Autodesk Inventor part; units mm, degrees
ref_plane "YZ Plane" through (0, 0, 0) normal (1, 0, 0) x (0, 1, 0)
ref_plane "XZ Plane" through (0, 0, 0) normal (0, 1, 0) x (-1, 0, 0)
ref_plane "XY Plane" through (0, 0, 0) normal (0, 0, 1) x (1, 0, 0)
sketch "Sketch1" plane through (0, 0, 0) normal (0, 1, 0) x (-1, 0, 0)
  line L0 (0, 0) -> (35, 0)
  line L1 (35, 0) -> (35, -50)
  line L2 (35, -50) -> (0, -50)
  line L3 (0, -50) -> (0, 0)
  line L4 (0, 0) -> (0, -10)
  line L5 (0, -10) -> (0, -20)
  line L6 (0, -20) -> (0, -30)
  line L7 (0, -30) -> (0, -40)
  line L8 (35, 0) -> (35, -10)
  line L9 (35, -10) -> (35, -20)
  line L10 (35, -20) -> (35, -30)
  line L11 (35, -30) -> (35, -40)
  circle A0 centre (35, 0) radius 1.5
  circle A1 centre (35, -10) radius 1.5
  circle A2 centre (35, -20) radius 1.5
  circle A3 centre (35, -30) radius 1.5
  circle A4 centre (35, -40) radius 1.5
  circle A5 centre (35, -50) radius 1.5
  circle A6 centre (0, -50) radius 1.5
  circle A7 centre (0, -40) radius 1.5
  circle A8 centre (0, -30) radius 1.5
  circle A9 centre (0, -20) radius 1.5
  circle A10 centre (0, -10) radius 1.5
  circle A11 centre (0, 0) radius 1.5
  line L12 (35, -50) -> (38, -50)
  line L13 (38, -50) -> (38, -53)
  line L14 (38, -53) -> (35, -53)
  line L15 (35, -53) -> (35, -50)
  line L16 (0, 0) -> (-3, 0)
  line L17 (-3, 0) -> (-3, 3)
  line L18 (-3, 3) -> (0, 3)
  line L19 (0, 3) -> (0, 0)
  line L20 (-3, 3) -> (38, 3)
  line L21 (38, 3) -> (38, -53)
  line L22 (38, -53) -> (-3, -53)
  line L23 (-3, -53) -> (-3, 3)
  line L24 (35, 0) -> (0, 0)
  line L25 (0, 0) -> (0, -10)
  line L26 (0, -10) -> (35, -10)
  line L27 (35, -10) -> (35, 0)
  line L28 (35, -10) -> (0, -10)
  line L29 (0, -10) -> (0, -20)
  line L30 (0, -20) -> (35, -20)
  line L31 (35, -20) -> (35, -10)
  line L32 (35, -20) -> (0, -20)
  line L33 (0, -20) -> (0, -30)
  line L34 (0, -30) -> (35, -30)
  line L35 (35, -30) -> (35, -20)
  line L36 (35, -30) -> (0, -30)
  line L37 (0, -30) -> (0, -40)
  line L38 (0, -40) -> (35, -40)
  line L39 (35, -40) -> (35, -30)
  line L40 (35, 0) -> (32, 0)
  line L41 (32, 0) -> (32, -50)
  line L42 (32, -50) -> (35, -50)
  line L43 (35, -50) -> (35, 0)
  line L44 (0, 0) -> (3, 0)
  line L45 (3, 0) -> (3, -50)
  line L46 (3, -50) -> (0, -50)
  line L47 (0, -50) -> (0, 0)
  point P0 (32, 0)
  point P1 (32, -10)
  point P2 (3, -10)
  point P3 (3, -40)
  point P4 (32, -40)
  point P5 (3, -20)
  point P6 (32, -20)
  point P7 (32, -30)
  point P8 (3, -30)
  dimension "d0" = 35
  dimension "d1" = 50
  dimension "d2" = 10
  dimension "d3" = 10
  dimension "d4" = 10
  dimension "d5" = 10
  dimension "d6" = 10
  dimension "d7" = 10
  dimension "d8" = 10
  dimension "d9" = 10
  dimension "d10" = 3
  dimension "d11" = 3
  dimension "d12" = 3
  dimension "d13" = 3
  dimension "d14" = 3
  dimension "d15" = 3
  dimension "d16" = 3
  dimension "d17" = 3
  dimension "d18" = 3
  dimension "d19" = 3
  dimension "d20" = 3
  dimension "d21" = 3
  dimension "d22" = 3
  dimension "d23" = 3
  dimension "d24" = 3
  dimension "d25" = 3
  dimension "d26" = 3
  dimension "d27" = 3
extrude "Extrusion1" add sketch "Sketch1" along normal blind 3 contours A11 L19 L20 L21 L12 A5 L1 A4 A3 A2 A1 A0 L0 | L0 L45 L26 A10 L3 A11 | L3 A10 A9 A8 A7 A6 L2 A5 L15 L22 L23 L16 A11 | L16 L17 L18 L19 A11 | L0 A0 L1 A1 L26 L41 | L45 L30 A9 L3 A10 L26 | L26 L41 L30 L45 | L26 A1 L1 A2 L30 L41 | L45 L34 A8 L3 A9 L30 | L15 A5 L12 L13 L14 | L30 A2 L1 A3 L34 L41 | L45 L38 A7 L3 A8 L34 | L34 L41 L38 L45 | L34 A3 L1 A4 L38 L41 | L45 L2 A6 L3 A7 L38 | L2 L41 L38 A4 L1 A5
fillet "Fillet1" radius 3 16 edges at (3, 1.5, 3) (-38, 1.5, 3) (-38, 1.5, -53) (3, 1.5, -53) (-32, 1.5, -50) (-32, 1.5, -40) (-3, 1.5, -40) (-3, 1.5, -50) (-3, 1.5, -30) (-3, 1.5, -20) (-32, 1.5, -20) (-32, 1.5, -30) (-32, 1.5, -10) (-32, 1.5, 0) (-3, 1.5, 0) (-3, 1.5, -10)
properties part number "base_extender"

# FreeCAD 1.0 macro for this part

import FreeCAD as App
import Part
import Sketcher
Q = App.Units.Quantity


def edges_at(feature, points):
    """Names of the edges that pass closest to the given points."""
    edges = feature.Shape.Edges
    near = lambda p: min(range(len(edges)), key=lambda i: edges[i].distToShape(Part.Vertex(*p))[0])
    return sorted({f"Edge{near(p) + 1}" for p in points})


def add_polygon(sketch, points):
    """Adds a closed chain of lines whose ends are joined by coincident constraints."""
    first, n = sketch.GeometryCount, len(points)
    for a, b in zip(points, points[1:] + points[:1]):
        sketch.addGeometry(Part.LineSegment(App.Vector(*a, 0), App.Vector(*b, 0)), False)
    for i in range(n):
        sketch.addConstraint(Sketcher.Constraint("Coincident", first + i, 2, first + (i + 1) % n, 1))

doc = App.newDocument("Part")
body = doc.addObject("PartDesign::Body", "Body")

# Sketch on XZ plane
sketch1 = doc.addObject("Sketcher::SketchObject", "Sketch")
body.addObject(sketch1)
sketch1.AttachmentSupport = (doc.XZ_Plane, [""])
sketch1.MapMode = "FlatFace"
add_polygon(sketch1, [(-38, 3), (3, 3), (3, -53), (-38, -53)])  # lines 0-3
sketch1.addGeometry(Part.Circle(App.Vector(0, 0, 0), App.Vector(0, 0, 1), 1.5), False)  # 4
sketch1.addGeometry(Part.Circle(App.Vector(-35, -50, 0), App.Vector(0, 0, 1), 1.5), False)  # 5
sketch1.addGeometry(Part.Circle(App.Vector(-35, -40, 0), App.Vector(0, 0, 1), 1.5), False)  # 6
sketch1.addGeometry(Part.Circle(App.Vector(-35, -30, 0), App.Vector(0, 0, 1), 1.5), False)  # 7
sketch1.addGeometry(Part.Circle(App.Vector(-35, -20, 0), App.Vector(0, 0, 1), 1.5), False)  # 8
sketch1.addGeometry(Part.Circle(App.Vector(-35, -10, 0), App.Vector(0, 0, 1), 1.5), False)  # 9
sketch1.addGeometry(Part.Circle(App.Vector(-35, 0, 0), App.Vector(0, 0, 1), 1.5), False)  # 10
add_polygon(sketch1, [(-3, 0), (-32, 0), (-32, -10), (-3, -10)])  # lines 11-14
add_polygon(sketch1, [(-32, -40), (-32, -50), (-3, -50), (-3, -40)])  # lines 15-18
add_polygon(sketch1, [(-32, -20), (-32, -30), (-3, -30), (-3, -20)])  # lines 19-22
sketch1.addGeometry(Part.Circle(App.Vector(0, -10, 0), App.Vector(0, 0, 1), 1.5), False)  # 23
sketch1.addGeometry(Part.Circle(App.Vector(0, -20, 0), App.Vector(0, 0, 1), 1.5), False)  # 24
sketch1.addGeometry(Part.Circle(App.Vector(0, -30, 0), App.Vector(0, 0, 1), 1.5), False)  # 25
sketch1.addGeometry(Part.Circle(App.Vector(0, -40, 0), App.Vector(0, 0, 1), 1.5), False)  # 26
sketch1.addGeometry(Part.Circle(App.Vector(0, -50, 0), App.Vector(0, 0, 1), 1.5), False)  # 27
sketch1.addConstraint([
    Sketcher.Constraint("Horizontal", 0),
    Sketcher.Constraint("Vertical", 1),
    Sketcher.Constraint("Horizontal", 2),
    Sketcher.Constraint("Vertical", 3),
    Sketcher.Constraint("Horizontal", 11),
    Sketcher.Constraint("Vertical", 12),
    Sketcher.Constraint("Horizontal", 13),
    Sketcher.Constraint("Vertical", 14),
    Sketcher.Constraint("Vertical", 15),
    Sketcher.Constraint("Horizontal", 16),
    Sketcher.Constraint("Vertical", 17),
    Sketcher.Constraint("Horizontal", 18),
    Sketcher.Constraint("Vertical", 19),
    Sketcher.Constraint("Horizontal", 20),
    Sketcher.Constraint("Vertical", 21),
    Sketcher.Constraint("Horizontal", 22),
    Sketcher.Constraint("Coincident", 4, 3, -1, 1),
    Sketcher.Constraint("Equal", 4, 5),
    Sketcher.Constraint("Equal", 5, 6),
    Sketcher.Constraint("Equal", 6, 7),
    Sketcher.Constraint("Equal", 7, 8),
    Sketcher.Constraint("Equal", 8, 9),
    Sketcher.Constraint("Equal", 9, 10),
    Sketcher.Constraint("Equal", 10, 23),
    Sketcher.Constraint("Equal", 23, 24),
    Sketcher.Constraint("Equal", 24, 25),
    Sketcher.Constraint("Equal", 25, 26),
    Sketcher.Constraint("Equal", 26, 27),
    Sketcher.Constraint("PointOnObject", 10, 3, -1),
    Sketcher.Constraint("PointOnObject", 23, 3, -2),
    Sketcher.Constraint("PointOnObject", 24, 3, -2),
    Sketcher.Constraint("PointOnObject", 25, 3, -2),
    Sketcher.Constraint("PointOnObject", 26, 3, -2),
    Sketcher.Constraint("PointOnObject", 27, 3, -2),
    Sketcher.Constraint("PointOnObject", 11, 2, -1),
    Sketcher.Constraint("Horizontal", 9, 3, 23, 3),
    Sketcher.Constraint("Horizontal", 8, 3, 24, 3),
    Sketcher.Constraint("Horizontal", 7, 3, 25, 3),
    Sketcher.Constraint("Horizontal", 6, 3, 26, 3),
    Sketcher.Constraint("Horizontal", 5, 3, 27, 3),
    Sketcher.Constraint("Horizontal", 23, 3, 12, 2),
    Sketcher.Constraint("Horizontal", 27, 3, 15, 2),
    Sketcher.Constraint("Horizontal", 26, 3, 17, 2),
    Sketcher.Constraint("Horizontal", 25, 3, 19, 2),
    Sketcher.Constraint("Horizontal", 24, 3, 21, 2),
    Sketcher.Constraint("Vertical", 5, 3, 6, 3),
    Sketcher.Constraint("Vertical", 6, 3, 7, 3),
    Sketcher.Constraint("Vertical", 7, 3, 8, 3),
    Sketcher.Constraint("Vertical", 8, 3, 9, 3),
    Sketcher.Constraint("Vertical", 9, 3, 10, 3),
    Sketcher.Constraint("Vertical", 12, 2, 15, 2),
    Sketcher.Constraint("Vertical", 14, 2, 16, 2),
    Sketcher.Constraint("Vertical", 18, 2, 19, 2),
    Sketcher.Constraint("Vertical", 17, 2, 20, 2),
    Sketcher.Constraint("Equal", 14, 15),
    Sketcher.Constraint("Equal", 17, 19),
    Sketcher.Constraint("Diameter", 4, Q("3 mm")),
    Sketcher.Constraint("DistanceY", 12, 2, 12, 1, Q("10 mm")),
    Sketcher.Constraint("DistanceX", 5, 3, -1, 1, Q("35 mm")),
    Sketcher.Constraint("DistanceY", 5, 3, -1, 1, Q("50 mm")),
    Sketcher.Constraint("DistanceX", -1, 1, 0, 2, Q("3 mm")),
    Sketcher.Constraint("DistanceY", -1, 1, 0, 2, Q("3 mm")),
    Sketcher.Constraint("DistanceX", 13, 2, -1, 1, Q("3 mm")),
    Sketcher.Constraint("DistanceY", 6, 3, 7, 3, Q("10 mm")),
    Sketcher.Constraint("DistanceY", 1, 2, 27, 3, Q("3 mm")),
    Sketcher.Constraint("DistanceX", 2, 2, 5, 3, Q("3 mm")),
    Sketcher.Constraint("DistanceX", 10, 3, 11, 2, Q("3 mm")),
])
pad1 = doc.addObject("PartDesign::Pad", "Pad")
body.addObject(pad1)
pad1.Profile = sketch1
pad1.Length = 3
pad1.Reversed = True
doc.recompute()

fillet = doc.addObject("PartDesign::Fillet", "Fillet")
body.addObject(fillet)
fillet.Base = (pad1, edges_at(pad1, [
    (3, 1.5, 3),
    (-38, 1.5, 3),
    (-38, 1.5, -53),
    (3, 1.5, -53),
    (-32, 1.5, -50),
    (-32, 1.5, -40),
    (-3, 1.5, -40),
    (-3, 1.5, -50),
    (-3, 1.5, -30),
    (-3, 1.5, -20),
    (-32, 1.5, -20),
    (-32, 1.5, -30),
    (-32, 1.5, -10),
    (-32, 1.5, 0),
    (-3, 1.5, 0),
    (-3, 1.5, -10),
]))
fillet.Radius = 3

doc.recompute()
